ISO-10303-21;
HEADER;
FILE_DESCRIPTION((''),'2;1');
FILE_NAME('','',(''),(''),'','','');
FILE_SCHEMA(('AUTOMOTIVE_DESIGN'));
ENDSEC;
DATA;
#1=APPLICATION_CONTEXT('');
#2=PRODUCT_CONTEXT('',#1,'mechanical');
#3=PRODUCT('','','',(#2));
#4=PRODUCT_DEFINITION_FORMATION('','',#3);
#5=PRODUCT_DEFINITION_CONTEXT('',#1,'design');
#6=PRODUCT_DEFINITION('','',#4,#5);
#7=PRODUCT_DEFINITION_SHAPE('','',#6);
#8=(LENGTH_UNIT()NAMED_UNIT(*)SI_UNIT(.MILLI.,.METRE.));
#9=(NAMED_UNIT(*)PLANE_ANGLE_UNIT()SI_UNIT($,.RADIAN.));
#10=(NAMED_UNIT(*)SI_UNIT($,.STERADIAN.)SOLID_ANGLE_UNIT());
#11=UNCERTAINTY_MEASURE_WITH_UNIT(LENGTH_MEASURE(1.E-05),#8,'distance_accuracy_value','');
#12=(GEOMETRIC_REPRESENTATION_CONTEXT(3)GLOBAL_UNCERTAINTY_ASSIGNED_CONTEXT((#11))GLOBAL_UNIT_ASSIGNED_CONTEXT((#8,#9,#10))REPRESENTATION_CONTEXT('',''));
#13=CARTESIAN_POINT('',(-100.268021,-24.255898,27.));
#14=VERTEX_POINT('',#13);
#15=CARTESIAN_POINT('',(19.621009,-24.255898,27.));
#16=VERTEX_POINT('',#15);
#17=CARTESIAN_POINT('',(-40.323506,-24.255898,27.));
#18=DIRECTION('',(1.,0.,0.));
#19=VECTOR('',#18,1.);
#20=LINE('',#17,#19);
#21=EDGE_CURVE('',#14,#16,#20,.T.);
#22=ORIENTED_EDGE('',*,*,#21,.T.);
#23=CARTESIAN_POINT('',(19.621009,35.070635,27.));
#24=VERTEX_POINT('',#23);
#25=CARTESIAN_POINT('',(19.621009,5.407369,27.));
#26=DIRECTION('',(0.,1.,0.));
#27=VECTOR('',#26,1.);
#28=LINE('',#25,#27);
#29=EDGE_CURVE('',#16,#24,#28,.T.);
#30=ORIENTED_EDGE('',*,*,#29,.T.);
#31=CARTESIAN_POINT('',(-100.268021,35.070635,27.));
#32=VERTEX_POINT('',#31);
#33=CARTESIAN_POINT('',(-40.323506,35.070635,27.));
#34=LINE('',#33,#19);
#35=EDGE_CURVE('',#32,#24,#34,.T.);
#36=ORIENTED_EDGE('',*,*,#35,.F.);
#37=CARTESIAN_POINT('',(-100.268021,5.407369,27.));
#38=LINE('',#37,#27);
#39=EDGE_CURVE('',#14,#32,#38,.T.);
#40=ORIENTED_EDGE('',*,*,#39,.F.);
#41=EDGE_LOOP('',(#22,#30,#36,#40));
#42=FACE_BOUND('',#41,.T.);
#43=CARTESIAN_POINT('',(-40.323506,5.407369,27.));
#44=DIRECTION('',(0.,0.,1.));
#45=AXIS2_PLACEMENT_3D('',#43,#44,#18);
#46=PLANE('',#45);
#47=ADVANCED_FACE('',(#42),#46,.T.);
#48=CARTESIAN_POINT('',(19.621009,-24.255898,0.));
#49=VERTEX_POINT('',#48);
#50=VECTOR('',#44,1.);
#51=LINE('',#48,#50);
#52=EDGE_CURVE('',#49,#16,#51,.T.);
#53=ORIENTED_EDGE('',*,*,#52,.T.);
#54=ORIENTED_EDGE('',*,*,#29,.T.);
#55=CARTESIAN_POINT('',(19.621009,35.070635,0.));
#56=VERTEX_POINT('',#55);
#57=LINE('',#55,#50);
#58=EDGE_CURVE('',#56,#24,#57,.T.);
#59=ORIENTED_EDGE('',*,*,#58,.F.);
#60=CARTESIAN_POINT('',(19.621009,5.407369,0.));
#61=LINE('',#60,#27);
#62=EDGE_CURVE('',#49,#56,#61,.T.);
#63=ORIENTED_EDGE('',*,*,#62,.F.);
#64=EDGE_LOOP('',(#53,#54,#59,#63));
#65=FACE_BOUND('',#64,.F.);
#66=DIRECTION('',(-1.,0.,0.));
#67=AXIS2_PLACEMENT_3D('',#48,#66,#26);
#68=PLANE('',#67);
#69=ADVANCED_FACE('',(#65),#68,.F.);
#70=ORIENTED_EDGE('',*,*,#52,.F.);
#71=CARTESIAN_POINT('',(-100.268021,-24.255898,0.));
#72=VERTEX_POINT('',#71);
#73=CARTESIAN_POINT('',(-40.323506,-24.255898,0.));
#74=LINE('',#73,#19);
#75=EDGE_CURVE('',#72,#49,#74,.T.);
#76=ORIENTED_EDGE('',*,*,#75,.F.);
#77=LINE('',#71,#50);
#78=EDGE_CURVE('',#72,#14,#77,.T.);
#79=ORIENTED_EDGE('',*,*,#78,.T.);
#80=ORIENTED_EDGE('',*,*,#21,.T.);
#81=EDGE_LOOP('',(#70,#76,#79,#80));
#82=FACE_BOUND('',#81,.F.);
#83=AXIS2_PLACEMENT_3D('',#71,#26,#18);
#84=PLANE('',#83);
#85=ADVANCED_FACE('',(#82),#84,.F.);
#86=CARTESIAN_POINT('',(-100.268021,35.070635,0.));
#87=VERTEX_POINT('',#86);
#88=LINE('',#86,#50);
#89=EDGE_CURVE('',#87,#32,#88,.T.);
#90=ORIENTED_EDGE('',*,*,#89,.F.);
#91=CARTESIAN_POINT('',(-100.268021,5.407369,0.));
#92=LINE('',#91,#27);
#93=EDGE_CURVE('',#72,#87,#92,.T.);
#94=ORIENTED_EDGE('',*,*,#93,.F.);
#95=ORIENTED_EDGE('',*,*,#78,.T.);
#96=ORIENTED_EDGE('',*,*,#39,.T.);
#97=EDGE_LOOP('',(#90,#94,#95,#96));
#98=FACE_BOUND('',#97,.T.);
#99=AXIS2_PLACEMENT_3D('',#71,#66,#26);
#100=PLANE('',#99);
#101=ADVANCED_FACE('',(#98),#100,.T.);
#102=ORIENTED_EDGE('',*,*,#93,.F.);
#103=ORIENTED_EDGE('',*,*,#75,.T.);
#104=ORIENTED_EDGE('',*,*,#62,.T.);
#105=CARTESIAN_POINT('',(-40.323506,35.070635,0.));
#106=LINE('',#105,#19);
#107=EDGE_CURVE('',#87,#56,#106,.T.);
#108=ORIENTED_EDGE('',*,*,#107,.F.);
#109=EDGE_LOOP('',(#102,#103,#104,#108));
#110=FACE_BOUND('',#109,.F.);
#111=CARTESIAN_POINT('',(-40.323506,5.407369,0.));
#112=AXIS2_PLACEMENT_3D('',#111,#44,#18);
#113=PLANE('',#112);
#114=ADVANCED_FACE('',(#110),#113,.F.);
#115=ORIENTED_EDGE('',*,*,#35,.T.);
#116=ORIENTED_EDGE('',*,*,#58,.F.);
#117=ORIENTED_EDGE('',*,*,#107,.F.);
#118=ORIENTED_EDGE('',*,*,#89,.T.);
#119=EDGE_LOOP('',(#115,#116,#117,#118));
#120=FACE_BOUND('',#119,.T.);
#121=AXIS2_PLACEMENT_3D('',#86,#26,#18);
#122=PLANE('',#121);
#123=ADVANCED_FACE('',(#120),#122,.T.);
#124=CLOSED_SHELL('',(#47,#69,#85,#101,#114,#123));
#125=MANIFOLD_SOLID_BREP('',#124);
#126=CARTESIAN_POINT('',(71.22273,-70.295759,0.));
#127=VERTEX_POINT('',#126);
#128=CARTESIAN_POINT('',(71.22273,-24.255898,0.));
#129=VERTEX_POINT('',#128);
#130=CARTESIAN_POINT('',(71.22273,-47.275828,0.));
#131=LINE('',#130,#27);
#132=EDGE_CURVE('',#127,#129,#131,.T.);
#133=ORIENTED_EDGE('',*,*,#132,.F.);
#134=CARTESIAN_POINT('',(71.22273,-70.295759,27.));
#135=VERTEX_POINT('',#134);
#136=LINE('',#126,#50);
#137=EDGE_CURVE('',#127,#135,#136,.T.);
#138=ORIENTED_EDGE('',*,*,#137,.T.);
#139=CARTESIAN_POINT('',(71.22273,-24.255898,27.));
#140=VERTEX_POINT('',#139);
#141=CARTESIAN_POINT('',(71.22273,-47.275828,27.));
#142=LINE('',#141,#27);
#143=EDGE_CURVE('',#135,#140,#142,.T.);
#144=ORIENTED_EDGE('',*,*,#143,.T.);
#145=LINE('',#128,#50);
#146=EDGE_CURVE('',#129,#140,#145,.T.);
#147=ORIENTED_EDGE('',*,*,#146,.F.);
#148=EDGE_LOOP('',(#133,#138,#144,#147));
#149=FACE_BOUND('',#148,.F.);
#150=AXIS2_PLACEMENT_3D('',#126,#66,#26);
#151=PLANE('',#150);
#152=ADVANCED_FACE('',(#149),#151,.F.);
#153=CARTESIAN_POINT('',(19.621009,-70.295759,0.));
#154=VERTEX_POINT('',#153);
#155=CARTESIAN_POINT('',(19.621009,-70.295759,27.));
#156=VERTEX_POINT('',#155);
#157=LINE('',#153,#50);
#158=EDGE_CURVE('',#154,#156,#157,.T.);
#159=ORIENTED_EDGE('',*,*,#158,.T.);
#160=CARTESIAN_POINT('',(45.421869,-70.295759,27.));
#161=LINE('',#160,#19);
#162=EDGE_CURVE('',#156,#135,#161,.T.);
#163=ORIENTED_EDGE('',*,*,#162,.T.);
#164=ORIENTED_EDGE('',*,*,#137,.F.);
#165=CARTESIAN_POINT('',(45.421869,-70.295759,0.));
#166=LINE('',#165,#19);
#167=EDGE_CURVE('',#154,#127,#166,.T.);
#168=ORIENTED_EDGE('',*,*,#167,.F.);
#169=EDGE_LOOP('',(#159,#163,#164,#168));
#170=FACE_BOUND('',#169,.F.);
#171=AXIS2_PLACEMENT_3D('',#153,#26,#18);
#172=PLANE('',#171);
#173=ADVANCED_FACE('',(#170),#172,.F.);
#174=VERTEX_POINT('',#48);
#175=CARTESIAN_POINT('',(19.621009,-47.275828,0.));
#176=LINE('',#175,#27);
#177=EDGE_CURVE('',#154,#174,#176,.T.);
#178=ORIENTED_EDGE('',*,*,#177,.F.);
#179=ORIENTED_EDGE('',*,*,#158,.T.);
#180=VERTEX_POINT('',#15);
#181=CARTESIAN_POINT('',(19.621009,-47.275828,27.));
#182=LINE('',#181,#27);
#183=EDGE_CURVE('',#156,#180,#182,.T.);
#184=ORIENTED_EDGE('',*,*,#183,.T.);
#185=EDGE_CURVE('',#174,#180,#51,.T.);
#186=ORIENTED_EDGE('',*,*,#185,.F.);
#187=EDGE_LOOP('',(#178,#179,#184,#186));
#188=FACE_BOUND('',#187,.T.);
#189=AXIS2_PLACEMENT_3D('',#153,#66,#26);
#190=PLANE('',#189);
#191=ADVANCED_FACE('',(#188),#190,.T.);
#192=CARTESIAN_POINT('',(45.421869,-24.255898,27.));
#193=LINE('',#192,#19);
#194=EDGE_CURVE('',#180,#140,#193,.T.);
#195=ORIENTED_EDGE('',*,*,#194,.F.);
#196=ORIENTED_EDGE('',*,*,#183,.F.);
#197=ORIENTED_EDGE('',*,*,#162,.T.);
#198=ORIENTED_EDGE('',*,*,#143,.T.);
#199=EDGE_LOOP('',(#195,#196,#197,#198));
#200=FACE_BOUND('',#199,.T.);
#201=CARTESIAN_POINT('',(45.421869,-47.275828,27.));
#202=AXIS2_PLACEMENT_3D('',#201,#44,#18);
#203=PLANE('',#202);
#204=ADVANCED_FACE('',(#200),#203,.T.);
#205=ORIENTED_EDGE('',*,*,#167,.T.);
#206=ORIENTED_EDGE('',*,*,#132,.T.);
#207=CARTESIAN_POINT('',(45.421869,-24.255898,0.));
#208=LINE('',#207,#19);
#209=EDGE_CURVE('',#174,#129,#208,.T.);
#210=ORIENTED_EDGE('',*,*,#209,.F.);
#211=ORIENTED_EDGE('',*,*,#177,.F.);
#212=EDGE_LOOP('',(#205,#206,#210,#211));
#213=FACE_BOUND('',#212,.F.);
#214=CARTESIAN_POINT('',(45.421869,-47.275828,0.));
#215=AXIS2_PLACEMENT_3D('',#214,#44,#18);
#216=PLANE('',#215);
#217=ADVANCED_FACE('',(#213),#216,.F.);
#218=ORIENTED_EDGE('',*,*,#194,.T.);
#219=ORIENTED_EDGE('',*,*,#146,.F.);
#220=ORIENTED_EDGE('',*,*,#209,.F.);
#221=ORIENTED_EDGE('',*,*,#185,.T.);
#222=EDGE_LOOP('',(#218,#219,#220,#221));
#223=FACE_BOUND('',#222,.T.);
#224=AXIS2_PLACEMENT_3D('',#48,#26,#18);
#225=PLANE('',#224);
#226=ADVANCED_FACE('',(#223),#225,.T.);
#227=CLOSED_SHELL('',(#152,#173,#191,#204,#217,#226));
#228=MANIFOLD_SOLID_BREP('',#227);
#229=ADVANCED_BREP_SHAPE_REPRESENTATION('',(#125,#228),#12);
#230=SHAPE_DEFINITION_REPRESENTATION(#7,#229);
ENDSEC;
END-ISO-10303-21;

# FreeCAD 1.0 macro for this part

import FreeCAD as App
import Part
import Sketcher
Q = App.Units.Quantity


def add_polygon(sketch, points):
    """Adds a closed chain of lines whose ends are joined by coincident constraints."""
    first, n = sketch.GeometryCount, len(points)
    for a, b in zip(points, points[1:] + points[:1]):
        sketch.addGeometry(Part.LineSegment(App.Vector(*a, 0), App.Vector(*b, 0)), False)
    for i in range(n):
        sketch.addConstraint(Sketcher.Constraint("Coincident", first + i, 2, first + (i + 1) % n, 1))

doc = App.newDocument("Part")
body = doc.addObject("PartDesign::Body", "Body")

# Sketch on XY plane
sketch1 = doc.addObject("Sketcher::SketchObject", "Sketch")
body.addObject(sketch1)
sketch1.AttachmentSupport = (doc.XY_Plane, [""])
sketch1.MapMode = "FlatFace"
add_polygon(sketch1, [(-100, 35), (-100, -24), (20, -24), (20, 35)])  # lines 0-3
sketch1.addConstraint(Sketcher.Constraint("Vertical", 0))
sketch1.addConstraint(Sketcher.Constraint("Horizontal", 1))
sketch1.addConstraint(Sketcher.Constraint("Vertical", 2))
sketch1.addConstraint(Sketcher.Constraint("Horizontal", 3))
sketch1.addConstraint(Sketcher.Constraint("DistanceX", 1, 1, 1, 2, Q("119.88903 mm")))
sketch1.addConstraint(Sketcher.Constraint("DistanceY", 0, 2, 0, 1, Q("59.326533 mm")))
sketch1.addConstraint(Sketcher.Constraint("DistanceX", 0, 2, -1, 1, Q("100.268021 mm")))
sketch1.addConstraint(Sketcher.Constraint("DistanceY", 0, 2, -1, 1, Q("24.255898 mm")))
pad1 = doc.addObject("PartDesign::Pad", "Pad")
body.addObject(pad1)
pad1.Profile = sketch1
pad1.Length = 27
body2 = doc.addObject("PartDesign::Body", "Body001")

# Sketch on XY plane
sketch2 = doc.addObject("Sketcher::SketchObject", "Sketch001")
body2.addObject(sketch2)
sketch2.AttachmentSupport = (doc.getObject("XY_Plane001"), [""])
sketch2.MapMode = "FlatFace"
add_polygon(sketch2, [(20, -24), (20, -70), (71, -70), (71, -24)])  # lines 0-3
sketch2.addConstraint(Sketcher.Constraint("Vertical", 0))
sketch2.addConstraint(Sketcher.Constraint("Horizontal", 1))
sketch2.addConstraint(Sketcher.Constraint("Vertical", 2))
sketch2.addConstraint(Sketcher.Constraint("Horizontal", 3))
sketch2.addConstraint(Sketcher.Constraint("DistanceX", 1, 1, 1, 2, Q("51.601721 mm")))
sketch2.addConstraint(Sketcher.Constraint("DistanceY", 0, 2, 0, 1, Q("46.039861 mm")))
sketch2.addConstraint(Sketcher.Constraint("DistanceX", -1, 1, 0, 2, Q("19.621009 mm")))
sketch2.addConstraint(Sketcher.Constraint("DistanceY", 0, 2, -1, 1, Q("70.295759 mm")))
pad2 = doc.addObject("PartDesign::Pad", "Pad001")
body2.addObject(pad2)
pad2.Profile = sketch2
pad2.Length = 27

doc.recompute()
